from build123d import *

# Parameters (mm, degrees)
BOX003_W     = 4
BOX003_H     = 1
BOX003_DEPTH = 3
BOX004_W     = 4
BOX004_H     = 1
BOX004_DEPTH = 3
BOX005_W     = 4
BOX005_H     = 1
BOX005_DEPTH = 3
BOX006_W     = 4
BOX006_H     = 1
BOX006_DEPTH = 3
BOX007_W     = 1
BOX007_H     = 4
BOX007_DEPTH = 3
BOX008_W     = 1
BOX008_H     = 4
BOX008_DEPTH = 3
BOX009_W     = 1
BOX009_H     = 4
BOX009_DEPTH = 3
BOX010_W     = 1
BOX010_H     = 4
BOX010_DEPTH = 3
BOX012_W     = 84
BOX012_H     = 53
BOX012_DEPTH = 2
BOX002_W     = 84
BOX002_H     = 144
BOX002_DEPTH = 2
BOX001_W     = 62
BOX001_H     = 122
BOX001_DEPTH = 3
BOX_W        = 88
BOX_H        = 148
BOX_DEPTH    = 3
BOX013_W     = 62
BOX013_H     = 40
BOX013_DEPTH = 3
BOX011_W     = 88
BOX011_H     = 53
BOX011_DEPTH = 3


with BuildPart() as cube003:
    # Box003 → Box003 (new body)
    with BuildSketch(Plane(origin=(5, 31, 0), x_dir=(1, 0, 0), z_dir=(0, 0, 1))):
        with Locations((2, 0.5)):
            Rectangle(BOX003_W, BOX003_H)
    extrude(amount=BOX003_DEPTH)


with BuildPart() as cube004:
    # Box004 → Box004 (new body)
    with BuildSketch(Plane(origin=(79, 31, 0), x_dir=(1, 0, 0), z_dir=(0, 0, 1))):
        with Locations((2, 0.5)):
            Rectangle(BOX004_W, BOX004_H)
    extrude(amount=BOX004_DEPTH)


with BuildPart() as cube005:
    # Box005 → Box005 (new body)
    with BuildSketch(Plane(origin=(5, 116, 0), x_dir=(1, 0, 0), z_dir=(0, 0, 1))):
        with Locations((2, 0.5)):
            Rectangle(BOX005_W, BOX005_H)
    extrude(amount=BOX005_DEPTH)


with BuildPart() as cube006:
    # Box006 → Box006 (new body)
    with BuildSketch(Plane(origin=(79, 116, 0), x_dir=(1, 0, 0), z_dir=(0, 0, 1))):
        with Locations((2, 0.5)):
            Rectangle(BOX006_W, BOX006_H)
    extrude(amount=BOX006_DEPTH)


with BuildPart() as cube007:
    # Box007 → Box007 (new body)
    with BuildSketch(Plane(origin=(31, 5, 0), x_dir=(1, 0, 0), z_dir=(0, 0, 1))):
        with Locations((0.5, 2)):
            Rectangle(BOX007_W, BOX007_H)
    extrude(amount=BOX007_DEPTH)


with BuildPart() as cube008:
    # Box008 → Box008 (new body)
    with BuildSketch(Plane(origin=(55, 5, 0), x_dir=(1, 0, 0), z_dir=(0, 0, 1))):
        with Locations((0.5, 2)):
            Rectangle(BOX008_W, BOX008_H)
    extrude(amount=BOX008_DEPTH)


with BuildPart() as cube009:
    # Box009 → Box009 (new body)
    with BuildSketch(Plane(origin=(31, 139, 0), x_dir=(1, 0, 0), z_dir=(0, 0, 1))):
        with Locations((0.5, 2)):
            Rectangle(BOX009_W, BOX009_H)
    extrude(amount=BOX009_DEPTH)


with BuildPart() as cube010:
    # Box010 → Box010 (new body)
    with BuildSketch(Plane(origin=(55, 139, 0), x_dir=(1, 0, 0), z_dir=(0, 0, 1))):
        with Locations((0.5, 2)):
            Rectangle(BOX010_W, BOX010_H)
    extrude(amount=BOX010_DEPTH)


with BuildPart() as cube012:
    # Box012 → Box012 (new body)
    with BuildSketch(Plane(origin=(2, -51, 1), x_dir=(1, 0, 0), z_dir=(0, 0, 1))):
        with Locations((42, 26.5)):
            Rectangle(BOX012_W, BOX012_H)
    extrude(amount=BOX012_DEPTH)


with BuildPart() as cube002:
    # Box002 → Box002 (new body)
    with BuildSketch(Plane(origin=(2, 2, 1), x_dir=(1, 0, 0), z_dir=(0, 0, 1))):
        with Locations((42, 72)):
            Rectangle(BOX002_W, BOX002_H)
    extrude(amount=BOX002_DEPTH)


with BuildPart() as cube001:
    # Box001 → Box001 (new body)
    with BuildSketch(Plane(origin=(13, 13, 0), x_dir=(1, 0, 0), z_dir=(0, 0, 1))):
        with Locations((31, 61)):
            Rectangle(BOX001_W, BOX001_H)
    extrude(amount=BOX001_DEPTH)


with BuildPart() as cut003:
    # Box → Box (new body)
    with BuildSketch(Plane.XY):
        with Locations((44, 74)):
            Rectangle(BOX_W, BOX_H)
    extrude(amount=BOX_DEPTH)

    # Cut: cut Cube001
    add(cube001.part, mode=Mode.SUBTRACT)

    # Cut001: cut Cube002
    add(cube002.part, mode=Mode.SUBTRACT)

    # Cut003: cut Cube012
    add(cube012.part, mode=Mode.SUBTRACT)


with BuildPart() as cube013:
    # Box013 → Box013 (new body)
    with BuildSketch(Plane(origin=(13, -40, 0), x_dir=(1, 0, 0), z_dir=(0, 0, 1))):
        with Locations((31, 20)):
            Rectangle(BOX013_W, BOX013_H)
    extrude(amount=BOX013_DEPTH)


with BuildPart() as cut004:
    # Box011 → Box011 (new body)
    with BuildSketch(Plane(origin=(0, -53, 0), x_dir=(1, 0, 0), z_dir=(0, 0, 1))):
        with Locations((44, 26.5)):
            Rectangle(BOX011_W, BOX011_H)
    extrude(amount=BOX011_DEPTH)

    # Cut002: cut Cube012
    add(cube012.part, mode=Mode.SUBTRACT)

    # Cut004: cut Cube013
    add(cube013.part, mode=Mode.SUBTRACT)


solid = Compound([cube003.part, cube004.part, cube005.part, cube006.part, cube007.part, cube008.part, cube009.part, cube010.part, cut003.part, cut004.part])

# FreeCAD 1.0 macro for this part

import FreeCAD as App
import Part
import Sketcher

V = App.Vector

doc = App.newDocument("Part")
body = doc.addObject("PartDesign::Body", "Body")

# Sketch on XY plane
sketch1 = body.newObject("Sketcher::SketchObject", "Sketch")
sketch1.AttachmentSupport = (doc.getObject("XY_Plane"), [""])
sketch1.MapMode = "FlatFace"
sketch1.addGeometry([
    Part.LineSegment(V(5, 32, 0), V(5, 31, 0)),
    Part.LineSegment(V(5, 31, 0), V(9, 31, 0)),
    Part.LineSegment(V(9, 31, 0), V(9, 32, 0)),
    Part.LineSegment(V(9, 32, 0), V(5, 32, 0)),
], False)
sketch1.addConstraint([
    Sketcher.Constraint("Coincident", 0, 2, 1, 1),
    Sketcher.Constraint("Coincident", 1, 2, 2, 1),
    Sketcher.Constraint("Coincident", 2, 2, 3, 1),
    Sketcher.Constraint("Coincident", 3, 2, 0, 1),
    Sketcher.Constraint("Vertical", 0),
    Sketcher.Constraint("Horizontal", 1),
    Sketcher.Constraint("Vertical", 2),
    Sketcher.Constraint("Horizontal", 3),
    Sketcher.Constraint("DistanceX", 1, 1, 1, 2, 4.0),
    Sketcher.Constraint("DistanceY", 0, 2, 0, 1, 1.0),
    Sketcher.Constraint("DistanceX", -1, 1, 0, 2, 5.0),
    Sketcher.Constraint("DistanceY", -1, 1, 0, 2, 31.0),
])
pad1 = body.newObject("PartDesign::Pad", "Pad")
pad1.Profile = sketch1
pad1.Length = 3
body2 = doc.addObject("PartDesign::Body", "Body001")

# Sketch on XY plane
sketch2 = body2.newObject("Sketcher::SketchObject", "Sketch001")
sketch2.AttachmentSupport = (doc.getObject("XY_Plane001"), [""])
sketch2.MapMode = "FlatFace"
sketch2.addGeometry([
    Part.LineSegment(V(79, 32, 0), V(79, 31, 0)),
    Part.LineSegment(V(79, 31, 0), V(83, 31, 0)),
    Part.LineSegment(V(83, 31, 0), V(83, 32, 0)),
    Part.LineSegment(V(83, 32, 0), V(79, 32, 0)),
], False)
sketch2.addConstraint([
    Sketcher.Constraint("Coincident", 0, 2, 1, 1),
    Sketcher.Constraint("Coincident", 1, 2, 2, 1),
    Sketcher.Constraint("Coincident", 2, 2, 3, 1),
    Sketcher.Constraint("Coincident", 3, 2, 0, 1),
    Sketcher.Constraint("Vertical", 0),
    Sketcher.Constraint("Horizontal", 1),
    Sketcher.Constraint("Vertical", 2),
    Sketcher.Constraint("Horizontal", 3),
    Sketcher.Constraint("DistanceX", 1, 1, 1, 2, 4.0),
    Sketcher.Constraint("DistanceY", 0, 2, 0, 1, 1.0),
    Sketcher.Constraint("DistanceX", -1, 1, 0, 2, 79.0),
    Sketcher.Constraint("DistanceY", -1, 1, 0, 2, 31.0),
])
pad2 = body2.newObject("PartDesign::Pad", "Pad001")
pad2.Profile = sketch2
pad2.Length = 3
body3 = doc.addObject("PartDesign::Body", "Body002")

# Sketch on XY plane
sketch3 = body3.newObject("Sketcher::SketchObject", "Sketch002")
sketch3.AttachmentSupport = (doc.getObject("XY_Plane002"), [""])
sketch3.MapMode = "FlatFace"
sketch3.addGeometry([
    Part.LineSegment(V(5, 117, 0), V(5, 116, 0)),
    Part.LineSegment(V(5, 116, 0), V(9, 116, 0)),
    Part.LineSegment(V(9, 116, 0), V(9, 117, 0)),
    Part.LineSegment(V(9, 117, 0), V(5, 117, 0)),
], False)
sketch3.addConstraint([
    Sketcher.Constraint("Coincident", 0, 2, 1, 1),
    Sketcher.Constraint("Coincident", 1, 2, 2, 1),
    Sketcher.Constraint("Coincident", 2, 2, 3, 1),
    Sketcher.Constraint("Coincident", 3, 2, 0, 1),
    Sketcher.Constraint("Vertical", 0),
    Sketcher.Constraint("Horizontal", 1),
    Sketcher.Constraint("Vertical", 2),
    Sketcher.Constraint("Horizontal", 3),
    Sketcher.Constraint("DistanceX", 1, 1, 1, 2, 4.0),
    Sketcher.Constraint("DistanceY", 0, 2, 0, 1, 1.0),
    Sketcher.Constraint("DistanceX", -1, 1, 0, 2, 5.0),
    Sketcher.Constraint("DistanceY", -1, 1, 0, 2, 116.0),
])
pad3 = body3.newObject("PartDesign::Pad", "Pad002")
pad3.Profile = sketch3
pad3.Length = 3
body4 = doc.addObject("PartDesign::Body", "Body003")

# Sketch on XY plane
sketch4 = body4.newObject("Sketcher::SketchObject", "Sketch003")
sketch4.AttachmentSupport = (doc.getObject("XY_Plane003"), [""])
sketch4.MapMode = "FlatFace"
sketch4.addGeometry([
    Part.LineSegment(V(79, 117, 0), V(79, 116, 0)),
    Part.LineSegment(V(79, 116, 0), V(83, 116, 0)),
    Part.LineSegment(V(83, 116, 0), V(83, 117, 0)),
    Part.LineSegment(V(83, 117, 0), V(79, 117, 0)),
], False)
sketch4.addConstraint([
    Sketcher.Constraint("Coincident", 0, 2, 1, 1),
    Sketcher.Constraint("Coincident", 1, 2, 2, 1),
    Sketcher.Constraint("Coincident", 2, 2, 3, 1),
    Sketcher.Constraint("Coincident", 3, 2, 0, 1),
    Sketcher.Constraint("Vertical", 0),
    Sketcher.Constraint("Horizontal", 1),
    Sketcher.Constraint("Vertical", 2),
    Sketcher.Constraint("Horizontal", 3),
    Sketcher.Constraint("DistanceX", 1, 1, 1, 2, 4.0),
    Sketcher.Constraint("DistanceY", 0, 2, 0, 1, 1.0),
    Sketcher.Constraint("DistanceX", -1, 1, 0, 2, 79.0),
    Sketcher.Constraint("DistanceY", -1, 1, 0, 2, 116.0),
])
pad4 = body4.newObject("PartDesign::Pad", "Pad003")
pad4.Profile = sketch4
pad4.Length = 3
body5 = doc.addObject("PartDesign::Body", "Body004")

# Sketch on XY plane
sketch5 = body5.newObject("Sketcher::SketchObject", "Sketch004")
sketch5.AttachmentSupport = (doc.getObject("XY_Plane004"), [""])
sketch5.MapMode = "FlatFace"
sketch5.addGeometry([
    Part.LineSegment(V(31, 9, 0), V(31, 5, 0)),
    Part.LineSegment(V(31, 5, 0), V(32, 5, 0)),
    Part.LineSegment(V(32, 5, 0), V(32, 9, 0)),
    Part.LineSegment(V(32, 9, 0), V(31, 9, 0)),
], False)
sketch5.addConstraint([
    Sketcher.Constraint("Coincident", 0, 2, 1, 1),
    Sketcher.Constraint("Coincident", 1, 2, 2, 1),
    Sketcher.Constraint("Coincident", 2, 2, 3, 1),
    Sketcher.Constraint("Coincident", 3, 2, 0, 1),
    Sketcher.Constraint("Vertical", 0),
    Sketcher.Constraint("Horizontal", 1),
    Sketcher.Constraint("Vertical", 2),
    Sketcher.Constraint("Horizontal", 3),
    Sketcher.Constraint("DistanceX", 1, 1, 1, 2, 1.0),
    Sketcher.Constraint("DistanceY", 0, 2, 0, 1, 4.0),
    Sketcher.Constraint("DistanceX", -1, 1, 0, 2, 31.0),
    Sketcher.Constraint("DistanceY", -1, 1, 0, 2, 5.0),
])
pad5 = body5.newObject("PartDesign::Pad", "Pad004")
pad5.Profile = sketch5
pad5.Length = 3
body6 = doc.addObject("PartDesign::Body", "Body005")

# Sketch on XY plane
sketch6 = body6.newObject("Sketcher::SketchObject", "Sketch005")
sketch6.AttachmentSupport = (doc.getObject("XY_Plane005"), [""])
sketch6.MapMode = "FlatFace"
sketch6.addGeometry([
    Part.LineSegment(V(55, 9, 0), V(55, 5, 0)),
    Part.LineSegment(V(55, 5, 0), V(56, 5, 0)),
    Part.LineSegment(V(56, 5, 0), V(56, 9, 0)),
    Part.LineSegment(V(56, 9, 0), V(55, 9, 0)),
], False)
sketch6.addConstraint([
    Sketcher.Constraint("Coincident", 0, 2, 1, 1),
    Sketcher.Constraint("Coincident", 1, 2, 2, 1),
    Sketcher.Constraint("Coincident", 2, 2, 3, 1),
    Sketcher.Constraint("Coincident", 3, 2, 0, 1),
    Sketcher.Constraint("Vertical", 0),
    Sketcher.Constraint("Horizontal", 1),
    Sketcher.Constraint("Vertical", 2),
    Sketcher.Constraint("Horizontal", 3),
    Sketcher.Constraint("DistanceX", 1, 1, 1, 2, 1.0),
    Sketcher.Constraint("DistanceY", 0, 2, 0, 1, 4.0),
    Sketcher.Constraint("DistanceX", -1, 1, 0, 2, 55.0),
    Sketcher.Constraint("DistanceY", -1, 1, 0, 2, 5.0),
])
pad6 = body6.newObject("PartDesign::Pad", "Pad005")
pad6.Profile = sketch6
pad6.Length = 3
body7 = doc.addObject("PartDesign::Body", "Body006")

# Sketch on XY plane
sketch7 = body7.newObject("Sketcher::SketchObject", "Sketch006")
sketch7.AttachmentSupport = (doc.getObject("XY_Plane006"), [""])
sketch7.MapMode = "FlatFace"
sketch7.addGeometry([
    Part.LineSegment(V(31, 143, 0), V(31, 139, 0)),
    Part.LineSegment(V(31, 139, 0), V(32, 139, 0)),
    Part.LineSegment(V(32, 139, 0), V(32, 143, 0)),
    Part.LineSegment(V(32, 143, 0), V(31, 143, 0)),
], False)
sketch7.addConstraint([
    Sketcher.Constraint("Coincident", 0, 2, 1, 1),
    Sketcher.Constraint("Coincident", 1, 2, 2, 1),
    Sketcher.Constraint("Coincident", 2, 2, 3, 1),
    Sketcher.Constraint("Coincident", 3, 2, 0, 1),
    Sketcher.Constraint("Vertical", 0),
    Sketcher.Constraint("Horizontal", 1),
    Sketcher.Constraint("Vertical", 2),
    Sketcher.Constraint("Horizontal", 3),
    Sketcher.Constraint("DistanceX", 1, 1, 1, 2, 1.0),
    Sketcher.Constraint("DistanceY", 0, 2, 0, 1, 4.0),
    Sketcher.Constraint("DistanceX", -1, 1, 0, 2, 31.0),
    Sketcher.Constraint("DistanceY", -1, 1, 0, 2, 139.0),
])
pad7 = body7.newObject("PartDesign::Pad", "Pad006")
pad7.Profile = sketch7
pad7.Length = 3
body8 = doc.addObject("PartDesign::Body", "Body007")

# Sketch on XY plane
sketch8 = body8.newObject("Sketcher::SketchObject", "Sketch007")
sketch8.AttachmentSupport = (doc.getObject("XY_Plane007"), [""])
sketch8.MapMode = "FlatFace"
sketch8.addGeometry([
    Part.LineSegment(V(55, 143, 0), V(55, 139, 0)),
    Part.LineSegment(V(55, 139, 0), V(56, 139, 0)),
    Part.LineSegment(V(56, 139, 0), V(56, 143, 0)),
    Part.LineSegment(V(56, 143, 0), V(55, 143, 0)),
], False)
sketch8.addConstraint([
    Sketcher.Constraint("Coincident", 0, 2, 1, 1),
    Sketcher.Constraint("Coincident", 1, 2, 2, 1),
    Sketcher.Constraint("Coincident", 2, 2, 3, 1),
    Sketcher.Constraint("Coincident", 3, 2, 0, 1),
    Sketcher.Constraint("Vertical", 0),
    Sketcher.Constraint("Horizontal", 1),
    Sketcher.Constraint("Vertical", 2),
    Sketcher.Constraint("Horizontal", 3),
    Sketcher.Constraint("DistanceX", 1, 1, 1, 2, 1.0),
    Sketcher.Constraint("DistanceY", 0, 2, 0, 1, 4.0),
    Sketcher.Constraint("DistanceX", -1, 1, 0, 2, 55.0),
    Sketcher.Constraint("DistanceY", -1, 1, 0, 2, 139.0),
])
pad8 = body8.newObject("PartDesign::Pad", "Pad007")
pad8.Profile = sketch8
pad8.Length = 3
body9 = doc.addObject("PartDesign::Body", "Body008")

# Sketch on XY plane
sketch9 = body9.newObject("Sketcher::SketchObject", "Sketch008")
sketch9.AttachmentSupport = (doc.getObject("XY_Plane008"), [""])
sketch9.MapMode = "FlatFace"
sketch9.AttachmentOffset = App.Placement(V(0, 0, 1), App.Rotation())
sketch9.addGeometry([
    Part.LineSegment(V(2, 2, 0), V(2, -51, 0)),
    Part.LineSegment(V(2, -51, 0), V(86, -51, 0)),
    Part.LineSegment(V(86, -51, 0), V(86, 2, 0)),
    Part.LineSegment(V(86, 2, 0), V(2, 2, 0)),
], False)
sketch9.addConstraint([
    Sketcher.Constraint("Coincident", 0, 2, 1, 1),
    Sketcher.Constraint("Coincident", 1, 2, 2, 1),
    Sketcher.Constraint("Coincident", 2, 2, 3, 1),
    Sketcher.Constraint("Coincident", 3, 2, 0, 1),
    Sketcher.Constraint("Vertical", 0),
    Sketcher.Constraint("Horizontal", 1),
    Sketcher.Constraint("Vertical", 2),
    Sketcher.Constraint("Horizontal", 3),
    Sketcher.Constraint("DistanceX", 1, 1, 1, 2, 84.0),
    Sketcher.Constraint("DistanceY", 0, 2, 0, 1, 53.0),
    Sketcher.Constraint("DistanceX", -1, 1, 0, 2, 2.0),
    Sketcher.Constraint("DistanceY", 0, 2, -1, 1, 51.0),
])
pad9 = body9.newObject("PartDesign::Pad", "Pad008")
pad9.Profile = sketch9
pad9.Length = 2
body10 = doc.addObject("PartDesign::Body", "Body009")

# Sketch on XY plane
sketch10 = body10.newObject("Sketcher::SketchObject", "Sketch009")
sketch10.AttachmentSupport = (doc.getObject("XY_Plane009"), [""])
sketch10.MapMode = "FlatFace"
sketch10.AttachmentOffset = App.Placement(V(0, 0, 1), App.Rotation())
sketch10.addGeometry([
    Part.LineSegment(V(2, 146, 0), V(2, 2, 0)),
    Part.LineSegment(V(2, 2, 0), V(86, 2, 0)),
    Part.LineSegment(V(86, 2, 0), V(86, 146, 0)),
    Part.LineSegment(V(86, 146, 0), V(2, 146, 0)),
], False)
sketch10.addConstraint([
    Sketcher.Constraint("Coincident", 0, 2, 1, 1),
    Sketcher.Constraint("Coincident", 1, 2, 2, 1),
    Sketcher.Constraint("Coincident", 2, 2, 3, 1),
    Sketcher.Constraint("Coincident", 3, 2, 0, 1),
    Sketcher.Constraint("Vertical", 0),
    Sketcher.Constraint("Horizontal", 1),
    Sketcher.Constraint("Vertical", 2),
    Sketcher.Constraint("Horizontal", 3),
    Sketcher.Constraint("DistanceX", 1, 1, 1, 2, 84.0),
    Sketcher.Constraint("DistanceY", 0, 2, 0, 1, 144.0),
    Sketcher.Constraint("DistanceX", -1, 1, 0, 2, 2.0),
    Sketcher.Constraint("DistanceY", -1, 1, 0, 2, 2.0),
])
pad10 = body10.newObject("PartDesign::Pad", "Pad009")
pad10.Profile = sketch10
pad10.Length = 2
body11 = doc.addObject("PartDesign::Body", "Body010")

# Sketch on XY plane
sketch11 = body11.newObject("Sketcher::SketchObject", "Sketch010")
sketch11.AttachmentSupport = (doc.getObject("XY_Plane010"), [""])
sketch11.MapMode = "FlatFace"
sketch11.addGeometry([
    Part.LineSegment(V(13, 135, 0), V(13, 13, 0)),
    Part.LineSegment(V(13, 13, 0), V(75, 13, 0)),
    Part.LineSegment(V(75, 13, 0), V(75, 135, 0)),
    Part.LineSegment(V(75, 135, 0), V(13, 135, 0)),
], False)
sketch11.addConstraint([
    Sketcher.Constraint("Coincident", 0, 2, 1, 1),
    Sketcher.Constraint("Coincident", 1, 2, 2, 1),
    Sketcher.Constraint("Coincident", 2, 2, 3, 1),
    Sketcher.Constraint("Coincident", 3, 2, 0, 1),
    Sketcher.Constraint("Vertical", 0),
    Sketcher.Constraint("Horizontal", 1),
    Sketcher.Constraint("Vertical", 2),
    Sketcher.Constraint("Horizontal", 3),
    Sketcher.Constraint("DistanceX", 1, 1, 1, 2, 62.0),
    Sketcher.Constraint("DistanceY", 0, 2, 0, 1, 122.0),
    Sketcher.Constraint("DistanceX", -1, 1, 0, 2, 13.0),
    Sketcher.Constraint("DistanceY", -1, 1, 0, 2, 13.0),
])
pad11 = body11.newObject("PartDesign::Pad", "Pad010")
pad11.Profile = sketch11
pad11.Length = 3
body12 = doc.addObject("PartDesign::Body", "Body011")

# Sketch on XY plane
sketch12 = body12.newObject("Sketcher::SketchObject", "Sketch011")
sketch12.AttachmentSupport = (doc.getObject("XY_Plane011"), [""])
sketch12.MapMode = "FlatFace"
sketch12.addGeometry([
    Part.LineSegment(V(0, 148, 0), V(0, 0, 0)),
    Part.LineSegment(V(0, 0, 0), V(88, 0, 0)),
    Part.LineSegment(V(88, 0, 0), V(88, 148, 0)),
    Part.LineSegment(V(88, 148, 0), V(0, 148, 0)),
], False)
sketch12.addConstraint([
    Sketcher.Constraint("Coincident", 0, 2, 1, 1),
    Sketcher.Constraint("Coincident", 1, 2, 2, 1),
    Sketcher.Constraint("Coincident", 2, 2, 3, 1),
    Sketcher.Constraint("Coincident", 3, 2, 0, 1),
    Sketcher.Constraint("Vertical", 0),
    Sketcher.Constraint("Horizontal", 1),
    Sketcher.Constraint("Vertical", 2),
    Sketcher.Constraint("Horizontal", 3),
    Sketcher.Constraint("Coincident", 0, 2, -1, 1),
    Sketcher.Constraint("DistanceX", 1, 1, 1, 2, 88.0),
    Sketcher.Constraint("DistanceY", 0, 2, 0, 1, 148.0),
])
pad12 = body12.newObject("PartDesign::Pad", "Pad011")
pad12.Profile = sketch12
pad12.Length = 3
doc.recompute()

boolean = body12.newObject("PartDesign::Boolean", "Boolean")
boolean.Type = "Cut"
boolean.addObjects([body11])
doc.recompute()

boolean2 = body12.newObject("PartDesign::Boolean", "Boolean001")
boolean2.Type = "Cut"
boolean2.addObjects([body10])
doc.recompute()

body13 = doc.addObject("PartDesign::Body", "Body012")
body13.BaseFeature = body9
boolean3 = body12.newObject("PartDesign::Boolean", "Boolean002")
boolean3.Type = "Cut"
boolean3.addObjects([body13])
doc.recompute()
body14 = doc.addObject("PartDesign::Body", "Body013")

# Sketch on XY plane
sketch13 = body14.newObject("Sketcher::SketchObject", "Sketch012")
sketch13.AttachmentSupport = (doc.getObject("XY_Plane013"), [""])
sketch13.MapMode = "FlatFace"
sketch13.addGeometry([
    Part.LineSegment(V(13, 0, 0), V(13, -40, 0)),
    Part.LineSegment(V(13, -40, 0), V(75, -40, 0)),
    Part.LineSegment(V(75, -40, 0), V(75, 0, 0)),
    Part.LineSegment(V(75, 0, 0), V(13, 0, 0)),
], False)
sketch13.addConstraint([
    Sketcher.Constraint("Coincident", 0, 2, 1, 1),
    Sketcher.Constraint("Coincident", 1, 2, 2, 1),
    Sketcher.Constraint("Coincident", 2, 2, 3, 1),
    Sketcher.Constraint("Coincident", 3, 2, 0, 1),
    Sketcher.Constraint("Vertical", 0),
    Sketcher.Constraint("Horizontal", 1),
    Sketcher.Constraint("Vertical", 2),
    Sketcher.Constraint("Horizontal", 3),
    Sketcher.Constraint("PointOnObject", 2, 2, -1),
    Sketcher.Constraint("DistanceX", 1, 1, 1, 2, 62.0),
    Sketcher.Constraint("DistanceY", 0, 2, 0, 1, 40.0),
    Sketcher.Constraint("DistanceX", -1, 1, 0, 2, 13.0),
])
pad13 = body14.newObject("PartDesign::Pad", "Pad012")
pad13.Profile = sketch13
pad13.Length = 3
body15 = doc.addObject("PartDesign::Body", "Body014")

# Sketch on XY plane
sketch14 = body15.newObject("Sketcher::SketchObject", "Sketch013")
sketch14.AttachmentSupport = (doc.getObject("XY_Plane014"), [""])
sketch14.MapMode = "FlatFace"
sketch14.addGeometry([
    Part.LineSegment(V(0, 0, 0), V(0, -53, 0)),
    Part.LineSegment(V(0, -53, 0), V(88, -53, 0)),
    Part.LineSegment(V(88, -53, 0), V(88, 0, 0)),
    Part.LineSegment(V(88, 0, 0), V(0, 0, 0)),
], False)
sketch14.addConstraint([
    Sketcher.Constraint("Coincident", 0, 2, 1, 1),
    Sketcher.Constraint("Coincident", 1, 2, 2, 1),
    Sketcher.Constraint("Coincident", 2, 2, 3, 1),
    Sketcher.Constraint("Coincident", 3, 2, 0, 1),
    Sketcher.Constraint("Vertical", 0),
    Sketcher.Constraint("Horizontal", 1),
    Sketcher.Constraint("Vertical", 2),
    Sketcher.Constraint("Horizontal", 3),
    Sketcher.Constraint("Coincident", 3, 2, -1, 1),
    Sketcher.Constraint("DistanceX", 1, 1, 1, 2, 88.0),
    Sketcher.Constraint("DistanceY", 0, 2, 0, 1, 53.0),
])
pad14 = body15.newObject("PartDesign::Pad", "Pad013")
pad14.Profile = sketch14
pad14.Length = 3
doc.recompute()

boolean4 = body15.newObject("PartDesign::Boolean", "Boolean003")
boolean4.Type = "Cut"
boolean4.addObjects([body9])
doc.recompute()

boolean5 = body15.newObject("PartDesign::Boolean", "Boolean004")
boolean5.Type = "Cut"
boolean5.addObjects([body14])

doc.recompute()
